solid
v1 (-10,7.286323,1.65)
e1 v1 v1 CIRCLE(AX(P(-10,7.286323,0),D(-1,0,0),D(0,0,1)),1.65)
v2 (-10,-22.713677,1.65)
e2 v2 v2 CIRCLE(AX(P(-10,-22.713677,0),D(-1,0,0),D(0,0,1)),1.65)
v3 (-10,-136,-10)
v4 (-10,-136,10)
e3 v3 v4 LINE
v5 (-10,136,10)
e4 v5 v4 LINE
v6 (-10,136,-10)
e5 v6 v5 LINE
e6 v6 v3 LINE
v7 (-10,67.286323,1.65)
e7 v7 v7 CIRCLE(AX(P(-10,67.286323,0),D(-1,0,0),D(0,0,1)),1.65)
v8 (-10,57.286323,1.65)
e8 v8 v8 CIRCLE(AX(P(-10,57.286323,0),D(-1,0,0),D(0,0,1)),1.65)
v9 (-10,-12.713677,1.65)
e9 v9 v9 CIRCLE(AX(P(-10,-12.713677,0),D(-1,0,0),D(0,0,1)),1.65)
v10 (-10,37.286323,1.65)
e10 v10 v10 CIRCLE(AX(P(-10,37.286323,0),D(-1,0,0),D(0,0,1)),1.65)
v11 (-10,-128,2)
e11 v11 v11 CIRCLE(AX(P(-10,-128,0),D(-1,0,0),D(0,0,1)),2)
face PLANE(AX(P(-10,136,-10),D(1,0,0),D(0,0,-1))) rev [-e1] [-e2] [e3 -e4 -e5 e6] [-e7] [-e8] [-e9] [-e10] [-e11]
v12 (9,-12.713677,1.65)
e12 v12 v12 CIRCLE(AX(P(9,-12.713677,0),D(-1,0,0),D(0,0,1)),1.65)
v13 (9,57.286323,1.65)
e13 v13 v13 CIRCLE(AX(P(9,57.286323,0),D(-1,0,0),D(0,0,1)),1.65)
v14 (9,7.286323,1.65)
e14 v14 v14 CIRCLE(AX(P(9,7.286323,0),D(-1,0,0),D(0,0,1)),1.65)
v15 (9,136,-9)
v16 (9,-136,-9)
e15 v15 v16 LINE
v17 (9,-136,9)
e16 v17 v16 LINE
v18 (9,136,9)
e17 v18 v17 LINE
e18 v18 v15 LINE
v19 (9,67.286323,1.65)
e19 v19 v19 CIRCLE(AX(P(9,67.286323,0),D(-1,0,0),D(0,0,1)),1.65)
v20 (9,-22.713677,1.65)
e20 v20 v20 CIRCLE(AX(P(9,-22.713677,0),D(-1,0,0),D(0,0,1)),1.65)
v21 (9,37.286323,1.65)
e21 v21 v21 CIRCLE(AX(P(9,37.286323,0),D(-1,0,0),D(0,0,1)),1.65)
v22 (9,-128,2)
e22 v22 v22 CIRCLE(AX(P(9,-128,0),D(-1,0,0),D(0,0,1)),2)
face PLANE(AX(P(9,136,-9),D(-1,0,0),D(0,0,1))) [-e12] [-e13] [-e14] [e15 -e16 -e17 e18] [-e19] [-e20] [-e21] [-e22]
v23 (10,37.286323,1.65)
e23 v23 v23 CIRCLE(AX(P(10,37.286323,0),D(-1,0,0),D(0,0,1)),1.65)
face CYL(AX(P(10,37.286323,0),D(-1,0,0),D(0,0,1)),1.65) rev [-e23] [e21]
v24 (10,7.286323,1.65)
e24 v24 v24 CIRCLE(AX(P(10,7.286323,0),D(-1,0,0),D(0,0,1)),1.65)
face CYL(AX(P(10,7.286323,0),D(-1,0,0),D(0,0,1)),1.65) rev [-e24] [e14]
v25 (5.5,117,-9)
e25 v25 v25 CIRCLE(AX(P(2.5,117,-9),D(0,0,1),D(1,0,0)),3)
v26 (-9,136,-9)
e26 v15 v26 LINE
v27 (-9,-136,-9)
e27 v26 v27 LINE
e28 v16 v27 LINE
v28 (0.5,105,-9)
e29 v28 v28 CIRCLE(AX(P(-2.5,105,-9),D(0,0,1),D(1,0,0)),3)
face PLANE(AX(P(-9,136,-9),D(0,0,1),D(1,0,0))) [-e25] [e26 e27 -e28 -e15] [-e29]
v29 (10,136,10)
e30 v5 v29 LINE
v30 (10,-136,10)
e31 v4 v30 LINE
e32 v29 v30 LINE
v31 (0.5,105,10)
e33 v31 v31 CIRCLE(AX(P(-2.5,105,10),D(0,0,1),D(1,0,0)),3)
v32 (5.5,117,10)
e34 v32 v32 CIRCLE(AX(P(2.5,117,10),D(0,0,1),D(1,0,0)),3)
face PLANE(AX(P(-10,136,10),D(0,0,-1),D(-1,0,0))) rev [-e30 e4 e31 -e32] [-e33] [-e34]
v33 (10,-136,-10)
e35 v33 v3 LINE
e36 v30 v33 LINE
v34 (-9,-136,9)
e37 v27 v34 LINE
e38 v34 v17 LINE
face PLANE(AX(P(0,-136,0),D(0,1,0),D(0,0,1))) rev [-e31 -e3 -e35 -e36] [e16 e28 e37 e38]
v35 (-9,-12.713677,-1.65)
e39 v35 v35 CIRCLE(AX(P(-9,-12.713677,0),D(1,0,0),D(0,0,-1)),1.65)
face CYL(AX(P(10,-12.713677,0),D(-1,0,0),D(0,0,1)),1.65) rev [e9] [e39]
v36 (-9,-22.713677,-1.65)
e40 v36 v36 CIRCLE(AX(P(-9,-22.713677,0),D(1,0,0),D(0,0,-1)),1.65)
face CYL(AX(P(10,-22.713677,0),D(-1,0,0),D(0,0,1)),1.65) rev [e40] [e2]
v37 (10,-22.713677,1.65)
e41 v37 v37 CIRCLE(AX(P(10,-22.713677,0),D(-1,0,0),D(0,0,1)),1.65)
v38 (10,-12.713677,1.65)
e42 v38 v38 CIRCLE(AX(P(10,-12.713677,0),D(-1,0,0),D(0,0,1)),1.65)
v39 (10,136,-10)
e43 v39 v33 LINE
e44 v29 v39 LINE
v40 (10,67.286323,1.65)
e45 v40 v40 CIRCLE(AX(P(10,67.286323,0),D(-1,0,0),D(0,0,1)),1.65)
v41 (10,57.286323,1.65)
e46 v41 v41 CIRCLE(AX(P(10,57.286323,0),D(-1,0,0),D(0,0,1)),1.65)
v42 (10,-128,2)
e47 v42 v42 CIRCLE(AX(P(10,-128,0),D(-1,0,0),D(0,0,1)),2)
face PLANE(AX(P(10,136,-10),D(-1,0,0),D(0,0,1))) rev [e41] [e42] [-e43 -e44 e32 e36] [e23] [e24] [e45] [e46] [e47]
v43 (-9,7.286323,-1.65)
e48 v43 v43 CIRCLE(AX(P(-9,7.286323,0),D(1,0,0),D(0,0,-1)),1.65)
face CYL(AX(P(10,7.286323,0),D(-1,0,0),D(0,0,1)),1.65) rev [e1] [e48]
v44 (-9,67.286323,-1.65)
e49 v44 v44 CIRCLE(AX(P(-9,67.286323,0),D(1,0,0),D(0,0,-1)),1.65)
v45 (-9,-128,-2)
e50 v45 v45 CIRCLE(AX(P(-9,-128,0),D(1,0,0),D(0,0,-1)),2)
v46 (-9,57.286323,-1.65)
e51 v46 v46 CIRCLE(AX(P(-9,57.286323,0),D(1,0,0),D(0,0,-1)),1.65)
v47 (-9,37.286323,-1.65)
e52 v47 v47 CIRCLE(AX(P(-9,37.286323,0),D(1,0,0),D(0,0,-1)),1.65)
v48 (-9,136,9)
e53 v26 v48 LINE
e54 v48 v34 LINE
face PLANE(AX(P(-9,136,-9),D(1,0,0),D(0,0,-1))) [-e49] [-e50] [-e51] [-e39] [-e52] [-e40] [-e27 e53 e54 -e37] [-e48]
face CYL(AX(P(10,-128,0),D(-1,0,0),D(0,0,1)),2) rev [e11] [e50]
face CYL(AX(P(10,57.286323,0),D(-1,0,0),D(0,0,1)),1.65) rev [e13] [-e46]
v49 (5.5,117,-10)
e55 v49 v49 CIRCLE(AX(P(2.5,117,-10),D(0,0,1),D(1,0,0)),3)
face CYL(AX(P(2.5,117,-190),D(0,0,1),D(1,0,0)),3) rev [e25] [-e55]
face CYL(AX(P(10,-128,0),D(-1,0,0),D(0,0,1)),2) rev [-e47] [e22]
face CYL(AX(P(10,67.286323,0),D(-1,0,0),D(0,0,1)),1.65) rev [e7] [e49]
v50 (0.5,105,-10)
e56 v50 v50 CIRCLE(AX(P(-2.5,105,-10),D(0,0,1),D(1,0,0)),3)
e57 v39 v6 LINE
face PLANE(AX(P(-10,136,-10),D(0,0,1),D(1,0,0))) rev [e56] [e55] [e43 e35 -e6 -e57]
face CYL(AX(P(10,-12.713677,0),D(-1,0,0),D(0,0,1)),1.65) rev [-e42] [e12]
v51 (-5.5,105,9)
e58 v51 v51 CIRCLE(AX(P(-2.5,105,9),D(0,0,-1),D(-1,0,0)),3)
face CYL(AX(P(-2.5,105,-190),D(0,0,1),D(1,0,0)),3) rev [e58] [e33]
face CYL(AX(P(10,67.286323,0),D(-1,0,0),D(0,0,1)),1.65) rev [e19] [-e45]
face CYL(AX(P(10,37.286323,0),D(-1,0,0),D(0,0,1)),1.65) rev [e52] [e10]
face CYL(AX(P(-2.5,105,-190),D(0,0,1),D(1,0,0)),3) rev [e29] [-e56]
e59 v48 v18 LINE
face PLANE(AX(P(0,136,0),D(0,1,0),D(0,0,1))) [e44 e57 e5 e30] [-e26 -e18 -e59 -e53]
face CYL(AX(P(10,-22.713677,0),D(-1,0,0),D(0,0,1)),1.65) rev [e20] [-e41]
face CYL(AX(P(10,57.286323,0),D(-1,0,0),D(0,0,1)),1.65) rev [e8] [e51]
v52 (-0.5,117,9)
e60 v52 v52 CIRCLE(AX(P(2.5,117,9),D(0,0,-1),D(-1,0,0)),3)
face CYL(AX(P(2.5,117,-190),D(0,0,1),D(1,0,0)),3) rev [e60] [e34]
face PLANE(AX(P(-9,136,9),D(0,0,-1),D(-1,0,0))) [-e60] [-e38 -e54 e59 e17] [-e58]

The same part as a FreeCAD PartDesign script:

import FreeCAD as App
import Part
import Sketcher

V = App.Vector
Q = App.Units.Quantity

doc = App.newDocument("Part")
body = doc.addObject("PartDesign::Body", "Body")

# Sketch on XZ plane
sketch1 = body.newObject("Sketcher::SketchObject", "Sketch")
sketch1.AttachmentSupport = (doc.getObject("XZ_Plane"), [""])
sketch1.MapMode = "FlatFace"
sketch1.addGeometry(Part.LineSegment(V(-10, -10, 0), V(-10, 10, 0)), False)
sketch1.addGeometry(Part.LineSegment(V(-10, 10, 0), V(10, 10, 0)), False)
sketch1.addGeometry(Part.LineSegment(V(10, 10, 0), V(10, -10, 0)), False)
sketch1.addGeometry(Part.LineSegment(V(10, -10, 0), V(-10, -10, 0)), False)
sketch1.addGeometry(Part.LineSegment(V(9, 9, 0), V(-9, 9, 0)), False)
sketch1.addGeometry(Part.LineSegment(V(-9, 9, 0), V(-9, -9, 0)), False)
sketch1.addGeometry(Part.LineSegment(V(-9, -9, 0), V(9, -9, 0)), False)
sketch1.addGeometry(Part.LineSegment(V(9, -9, 0), V(9, 9, 0)), False)
sketch1.addConstraint(Sketcher.Constraint("Coincident", 0, 2, 1, 1))
sketch1.addConstraint(Sketcher.Constraint("Coincident", 1, 2, 2, 1))
sketch1.addConstraint(Sketcher.Constraint("Coincident", 2, 2, 3, 1))
sketch1.addConstraint(Sketcher.Constraint("Coincident", 3, 2, 0, 1))
sketch1.addConstraint(Sketcher.Constraint("Coincident", 4, 2, 5, 1))
sketch1.addConstraint(Sketcher.Constraint("Coincident", 5, 2, 6, 1))
sketch1.addConstraint(Sketcher.Constraint("Coincident", 6, 2, 7, 1))
sketch1.addConstraint(Sketcher.Constraint("Coincident", 7, 2, 4, 1))
sketch1.addConstraint(Sketcher.Constraint("Vertical", 0))
sketch1.addConstraint(Sketcher.Constraint("Horizontal", 1))
sketch1.addConstraint(Sketcher.Constraint("Vertical", 2))
sketch1.addConstraint(Sketcher.Constraint("Horizontal", 3))
sketch1.addConstraint(Sketcher.Constraint("Horizontal", 4))
sketch1.addConstraint(Sketcher.Constraint("Vertical", 5))
sketch1.addConstraint(Sketcher.Constraint("Horizontal", 6))
sketch1.addConstraint(Sketcher.Constraint("Vertical", 7))
sketch1.addConstraint(Sketcher.Constraint("Symmetric", 0, 2, 2, 2, -1, 1))
sketch1.addConstraint(Sketcher.Constraint("Symmetric", 4, 2, 6, 2, -1, 1))
sketch1.addConstraint(Sketcher.Constraint("Equal", 3, 0))
sketch1.addConstraint(Sketcher.Constraint("Equal", 6, 5))
sketch1.addConstraint(Sketcher.Constraint("DistanceX", 1, 1, 1, 2, Q("20 mm")))
sketch1.addConstraint(Sketcher.Constraint("DistanceX", 4, 2, 4, 1, Q("18 mm")))
pad1 = body.newObject("PartDesign::Pad", "Pad")
pad1.Profile = sketch1
pad1.Length = 272
pad1.Midplane = True

# Sketch on XY plane
sketch2 = body.newObject("Sketcher::SketchObject", "Sketch001")
sketch2.AttachmentSupport = (doc.getObject("XY_Plane"), [""])
sketch2.MapMode = "FlatFace"
sketch2.AttachmentOffset = App.Placement(V(0, 0, 10), App.Rotation())
sketch2.addGeometry(Part.Circle(V(-2.5, 105, 0), V(0, 0, 1), 3), False)
sketch2.addGeometry(Part.Circle(V(2.5, 117, 0), V(0, 0, 1), 3), False)
sketch2.addConstraint(Sketcher.Constraint("Equal", 0, 1))
sketch2.addConstraint(Sketcher.Constraint("Diameter", 0, Q("6 mm")))
sketch2.addConstraint(Sketcher.Constraint("DistanceY", -1, 1, 0, 3, Q("105 mm")))
sketch2.addConstraint(Sketcher.Constraint("DistanceY", -1, 1, 1, 3, Q("117 mm")))
sketch2.addConstraint(Sketcher.Constraint("DistanceX", 0, 3, 1, 3, Q("5 mm")))
sketch2.addConstraint(Sketcher.Constraint("DistanceX", 0, 3, -1, 1, Q("2.5 mm")))
pocket1 = body.newObject("PartDesign::Pocket", "Pocket")
pocket1.Profile = sketch2
pocket1.Length = 200

# Sketch on YZ plane
sketch3 = body.newObject("Sketcher::SketchObject", "Sketch002")
sketch3.AttachmentSupport = (doc.getObject("YZ_Plane"), [""])
sketch3.MapMode = "FlatFace"
sketch3.AttachmentOffset = App.Placement(V(0, 0, -10), App.Rotation())
sketch3.addGeometry(Part.Circle(V(-128, 0, 0), V(0, 0, 1), 2), False)
sketch3.addGeometry(Part.Circle(V(57.286323, 0, 0), V(0, 0, 1), 1.65), False)
sketch3.addGeometry(Part.Circle(V(67.286323, 0, 0), V(0, 0, 1), 1.65), False)
sketch3.addGeometry(Part.Circle(V(-12.713677, 0, 0), V(0, 0, 1), 1.65), False)
sketch3.addGeometry(Part.Circle(V(-22.713677, 0, 0), V(0, 0, 1), 1.65), False)
sketch3.addGeometry(Part.Circle(V(37.286323, 0, 0), V(0, 0, 1), 1.65), False)
sketch3.addGeometry(Part.Circle(V(7.286323, 0, 0), V(0, 0, 1), 1.65), False)
sketch3.addConstraint(Sketcher.Constraint("Equal", 1, 2))
sketch3.addConstraint(Sketcher.Constraint("Equal", 2, 3))
sketch3.addConstraint(Sketcher.Constraint("Equal", 3, 4))
sketch3.addConstraint(Sketcher.Constraint("Equal", 4, 5))
sketch3.addConstraint(Sketcher.Constraint("Equal", 5, 6))
sketch3.addConstraint(Sketcher.Constraint("PointOnObject", 0, 3, -1))
sketch3.addConstraint(Sketcher.Constraint("PointOnObject", 1, 3, -1))
sketch3.addConstraint(Sketcher.Constraint("PointOnObject", 2, 3, -1))
sketch3.addConstraint(Sketcher.Constraint("PointOnObject", 3, 3, -1))
sketch3.addConstraint(Sketcher.Constraint("PointOnObject", 4, 3, -1))
sketch3.addConstraint(Sketcher.Constraint("PointOnObject", 5, 3, -1))
sketch3.addConstraint(Sketcher.Constraint("PointOnObject", 6, 3, -1))
sketch3.addConstraint(Sketcher.Constraint("Diameter", 0, Q("4 mm")))
sketch3.addConstraint(Sketcher.Constraint("Diameter", 1, Q("3.3 mm")))
sketch3.addConstraint(Sketcher.Constraint("DistanceX", 0, 3, -1, 1, Q("128 mm")))
sketch3.addConstraint(Sketcher.Constraint("DistanceX", 1, 3, 2, 3, Q("10 mm")))
sketch3.addConstraint(Sketcher.Constraint("DistanceX", 3, 3, 1, 3, Q("70 mm")))
sketch3.addConstraint(Sketcher.Constraint("DistanceX", 4, 3, 3, 3, Q("10 mm")))
sketch3.addConstraint(Sketcher.Constraint("DistanceX", 5, 3, 1, 3, Q("20 mm")))
sketch3.addConstraint(Sketcher.Constraint("DistanceX", 3, 3, 6, 3, Q("20 mm")))
sketch3.addConstraint(Sketcher.Constraint("DistanceX", -1, 1, 1, 3, Q("57.286323 mm")))
pocket2 = body.newObject("PartDesign::Pocket", "Pocket001")
pocket2.Profile = sketch3
pocket2.Type = "ThroughAll"
pocket2.Reversed = True

doc.recompute()
